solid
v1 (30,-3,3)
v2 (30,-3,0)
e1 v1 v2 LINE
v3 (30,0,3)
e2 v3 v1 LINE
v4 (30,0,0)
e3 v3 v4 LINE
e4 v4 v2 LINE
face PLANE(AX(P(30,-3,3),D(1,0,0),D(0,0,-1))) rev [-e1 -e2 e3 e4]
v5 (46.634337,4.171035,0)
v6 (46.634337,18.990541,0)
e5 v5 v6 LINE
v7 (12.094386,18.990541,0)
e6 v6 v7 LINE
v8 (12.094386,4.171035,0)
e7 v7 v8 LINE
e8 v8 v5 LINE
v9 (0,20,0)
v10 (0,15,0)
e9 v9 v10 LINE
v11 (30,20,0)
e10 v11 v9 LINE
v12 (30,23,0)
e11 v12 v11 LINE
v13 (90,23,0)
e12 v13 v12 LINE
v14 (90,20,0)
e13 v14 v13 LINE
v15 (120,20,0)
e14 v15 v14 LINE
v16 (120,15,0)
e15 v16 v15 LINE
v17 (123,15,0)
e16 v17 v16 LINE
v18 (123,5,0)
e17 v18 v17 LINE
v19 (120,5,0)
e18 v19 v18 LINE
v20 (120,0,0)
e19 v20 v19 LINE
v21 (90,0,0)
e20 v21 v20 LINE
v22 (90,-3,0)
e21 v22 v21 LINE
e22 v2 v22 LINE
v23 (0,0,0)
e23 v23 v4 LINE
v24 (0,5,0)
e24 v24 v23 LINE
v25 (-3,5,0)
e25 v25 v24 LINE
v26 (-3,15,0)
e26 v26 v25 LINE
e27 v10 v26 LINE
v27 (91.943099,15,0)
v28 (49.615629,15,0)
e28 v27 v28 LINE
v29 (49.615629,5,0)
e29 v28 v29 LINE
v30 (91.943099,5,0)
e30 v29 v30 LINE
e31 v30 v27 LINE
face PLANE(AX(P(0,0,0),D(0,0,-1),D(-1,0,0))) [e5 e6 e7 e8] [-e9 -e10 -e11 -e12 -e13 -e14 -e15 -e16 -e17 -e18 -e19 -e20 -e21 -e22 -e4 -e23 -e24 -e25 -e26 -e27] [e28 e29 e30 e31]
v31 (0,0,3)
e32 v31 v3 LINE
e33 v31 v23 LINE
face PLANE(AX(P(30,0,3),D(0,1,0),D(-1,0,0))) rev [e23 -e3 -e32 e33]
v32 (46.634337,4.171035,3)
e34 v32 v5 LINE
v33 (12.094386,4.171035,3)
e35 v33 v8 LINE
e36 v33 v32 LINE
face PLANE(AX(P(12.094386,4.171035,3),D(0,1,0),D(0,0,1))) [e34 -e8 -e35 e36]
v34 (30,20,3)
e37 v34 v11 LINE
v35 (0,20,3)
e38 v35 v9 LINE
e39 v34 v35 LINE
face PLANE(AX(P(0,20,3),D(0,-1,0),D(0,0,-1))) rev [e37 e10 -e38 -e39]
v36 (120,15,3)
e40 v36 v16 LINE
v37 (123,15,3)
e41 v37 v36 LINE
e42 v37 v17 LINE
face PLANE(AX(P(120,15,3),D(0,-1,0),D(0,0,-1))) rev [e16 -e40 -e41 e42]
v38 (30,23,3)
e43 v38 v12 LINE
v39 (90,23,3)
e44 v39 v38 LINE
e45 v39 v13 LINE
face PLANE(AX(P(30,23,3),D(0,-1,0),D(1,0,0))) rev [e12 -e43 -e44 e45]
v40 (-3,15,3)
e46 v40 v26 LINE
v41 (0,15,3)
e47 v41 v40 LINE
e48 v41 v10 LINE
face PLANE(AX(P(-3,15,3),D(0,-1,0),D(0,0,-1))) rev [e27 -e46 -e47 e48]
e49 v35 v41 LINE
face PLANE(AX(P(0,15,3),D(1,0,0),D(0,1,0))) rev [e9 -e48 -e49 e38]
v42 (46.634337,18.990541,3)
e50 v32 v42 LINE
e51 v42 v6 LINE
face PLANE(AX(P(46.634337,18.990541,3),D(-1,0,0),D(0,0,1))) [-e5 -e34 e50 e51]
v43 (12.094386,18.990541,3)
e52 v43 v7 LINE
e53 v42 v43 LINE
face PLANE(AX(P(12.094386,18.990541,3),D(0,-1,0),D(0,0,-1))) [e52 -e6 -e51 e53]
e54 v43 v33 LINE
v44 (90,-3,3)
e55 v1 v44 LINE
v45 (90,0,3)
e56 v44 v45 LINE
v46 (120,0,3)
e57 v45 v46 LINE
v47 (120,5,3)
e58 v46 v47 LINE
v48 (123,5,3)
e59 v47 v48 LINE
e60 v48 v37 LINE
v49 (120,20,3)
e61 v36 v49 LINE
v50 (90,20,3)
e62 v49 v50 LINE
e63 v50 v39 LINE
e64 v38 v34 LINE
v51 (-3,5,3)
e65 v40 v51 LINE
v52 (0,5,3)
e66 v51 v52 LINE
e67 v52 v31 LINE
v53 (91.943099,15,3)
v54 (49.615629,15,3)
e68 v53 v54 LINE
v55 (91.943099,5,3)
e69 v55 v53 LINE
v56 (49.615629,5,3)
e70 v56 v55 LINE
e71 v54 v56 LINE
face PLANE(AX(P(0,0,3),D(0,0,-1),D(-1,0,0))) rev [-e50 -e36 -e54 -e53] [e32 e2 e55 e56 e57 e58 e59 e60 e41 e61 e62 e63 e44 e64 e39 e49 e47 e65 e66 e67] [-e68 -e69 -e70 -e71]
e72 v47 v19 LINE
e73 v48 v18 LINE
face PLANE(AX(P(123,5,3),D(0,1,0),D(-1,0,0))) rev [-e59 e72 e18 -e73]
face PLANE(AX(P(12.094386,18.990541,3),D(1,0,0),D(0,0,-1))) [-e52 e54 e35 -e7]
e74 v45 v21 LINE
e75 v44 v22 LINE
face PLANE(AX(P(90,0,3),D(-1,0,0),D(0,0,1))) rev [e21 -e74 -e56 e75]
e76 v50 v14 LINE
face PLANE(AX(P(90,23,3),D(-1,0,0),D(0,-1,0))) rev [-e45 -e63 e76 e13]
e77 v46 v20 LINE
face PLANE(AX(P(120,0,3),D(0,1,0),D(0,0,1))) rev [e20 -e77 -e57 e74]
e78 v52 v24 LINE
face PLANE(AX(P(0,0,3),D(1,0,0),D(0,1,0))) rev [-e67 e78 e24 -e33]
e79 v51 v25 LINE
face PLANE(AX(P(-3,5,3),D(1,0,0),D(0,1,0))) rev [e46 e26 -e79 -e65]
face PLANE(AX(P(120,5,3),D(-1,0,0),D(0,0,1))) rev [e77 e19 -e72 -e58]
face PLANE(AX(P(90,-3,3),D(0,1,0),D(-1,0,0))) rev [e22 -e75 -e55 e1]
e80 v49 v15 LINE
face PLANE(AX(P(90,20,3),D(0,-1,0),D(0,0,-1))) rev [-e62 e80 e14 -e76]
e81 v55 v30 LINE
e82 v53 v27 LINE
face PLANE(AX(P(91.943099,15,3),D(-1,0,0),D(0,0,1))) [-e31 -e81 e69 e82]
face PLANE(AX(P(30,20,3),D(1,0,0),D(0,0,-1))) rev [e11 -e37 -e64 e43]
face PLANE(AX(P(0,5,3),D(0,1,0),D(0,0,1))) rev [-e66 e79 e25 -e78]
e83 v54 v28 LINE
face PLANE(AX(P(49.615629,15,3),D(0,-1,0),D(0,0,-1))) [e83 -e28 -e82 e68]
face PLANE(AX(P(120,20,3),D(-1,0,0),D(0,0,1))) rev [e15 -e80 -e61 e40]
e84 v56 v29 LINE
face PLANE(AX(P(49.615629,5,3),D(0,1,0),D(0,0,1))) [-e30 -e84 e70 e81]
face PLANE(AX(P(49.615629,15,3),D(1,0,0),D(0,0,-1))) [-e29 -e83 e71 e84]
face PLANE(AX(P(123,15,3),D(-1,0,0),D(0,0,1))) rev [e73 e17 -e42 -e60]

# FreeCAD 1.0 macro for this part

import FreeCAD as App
import Part
import Sketcher

doc = App.newDocument("Part")
params = doc.addObject("Spreadsheet::Sheet", "Params")
for row, (alias, value) in enumerate([
    ("sketch1_width", "30 mm"),
    ("sketch1_width2", "60 mm"),
    ("sketch1_width3", "3 mm"),
    ("sketch1_height", "5 mm"),
    ("sketch1_height2", "10 mm"),
    ("pad1_length", "3 mm"),
], start=1):
    params.set(f"A{row}", alias)
    params.set(f"B{row}", "=" + value)
    params.setAlias(f"B{row}", alias)

body = doc.addObject("PartDesign::Body", "Body")

sketch1 = body.newObject("Sketcher::SketchObject", "Sketch")
sketch1.AttachmentSupport = (doc.getObject("XY_Plane"), [""])
sketch1.MapMode = "FlatFace"
sketch1.addGeometry(Part.LineSegment(App.Vector(0, 5, 0), App.Vector(0, 0, 0)), False)
sketch1.addGeometry(Part.LineSegment(App.Vector(0, 0, 0), App.Vector(30, 0, 0)), False)
sketch1.addGeometry(Part.LineSegment(App.Vector(30, 0, 0), App.Vector(30, -3, 0)), False)
sketch1.addGeometry(Part.LineSegment(App.Vector(30, -3, 0), App.Vector(90, -3, 0)), False)
sketch1.addGeometry(Part.LineSegment(App.Vector(90, -3, 0), App.Vector(90, 0, 0)), False)
sketch1.addGeometry(Part.LineSegment(App.Vector(90, 0, 0), App.Vector(120, 0, 0)), False)
sketch1.addGeometry(Part.LineSegment(App.Vector(120, 0, 0), App.Vector(120, 5, 0)), False)
sketch1.addGeometry(Part.LineSegment(App.Vector(120, 5, 0), App.Vector(123, 5, 0)), False)
sketch1.addGeometry(Part.LineSegment(App.Vector(123, 5, 0), App.Vector(123, 15, 0)), False)
sketch1.addGeometry(Part.LineSegment(App.Vector(123, 15, 0), App.Vector(120, 15, 0)), False)
sketch1.addGeometry(Part.LineSegment(App.Vector(120, 15, 0), App.Vector(120, 20, 0)), False)
sketch1.addGeometry(Part.LineSegment(App.Vector(120, 20, 0), App.Vector(90, 20, 0)), False)
sketch1.addGeometry(Part.LineSegment(App.Vector(90, 20, 0), App.Vector(90, 23, 0)), False)
sketch1.addGeometry(Part.LineSegment(App.Vector(90, 23, 0), App.Vector(30, 23, 0)), False)
sketch1.addGeometry(Part.LineSegment(App.Vector(30, 23, 0), App.Vector(30, 20, 0)), False)
sketch1.addGeometry(Part.LineSegment(App.Vector(30, 20, 0), App.Vector(0, 20, 0)), False)
sketch1.addGeometry(Part.LineSegment(App.Vector(0, 20, 0), App.Vector(0, 15, 0)), False)
sketch1.addGeometry(Part.LineSegment(App.Vector(0, 15, 0), App.Vector(-3, 15, 0)), False)
sketch1.addGeometry(Part.LineSegment(App.Vector(-3, 15, 0), App.Vector(-3, 5, 0)), False)
sketch1.addGeometry(Part.LineSegment(App.Vector(-3, 5, 0), App.Vector(0, 5, 0)), False)
sketch1.addGeometry(Part.LineSegment(App.Vector(49.615629, 5, 0), App.Vector(49.615629, 15, 0)), False)
sketch1.addGeometry(Part.LineSegment(App.Vector(49.615629, 15, 0), App.Vector(91.943099, 15, 0)), False)
sketch1.addGeometry(Part.LineSegment(App.Vector(91.943099, 15, 0), App.Vector(91.943099, 5, 0)), False)
sketch1.addGeometry(Part.LineSegment(App.Vector(91.943099, 5, 0), App.Vector(49.615629, 5, 0)), False)
sketch1.addGeometry(Part.LineSegment(App.Vector(12.094386, 4.171035, 0), App.Vector(12.094386, 18.990541, 0)), False)
sketch1.addGeometry(Part.LineSegment(App.Vector(12.094386, 18.990541, 0), App.Vector(46.634337, 18.990541, 0)), False)
sketch1.addGeometry(Part.LineSegment(App.Vector(46.634337, 18.990541, 0), App.Vector(46.634337, 4.171035, 0)), False)
sketch1.addGeometry(Part.LineSegment(App.Vector(46.634337, 4.171035, 0), App.Vector(12.094386, 4.171035, 0)), False)
sketch1.addConstraint(Sketcher.Constraint("Coincident", 0, 2, 1, 1))
sketch1.addConstraint(Sketcher.Constraint("Coincident", 1, 2, 2, 1))
sketch1.addConstraint(Sketcher.Constraint("Coincident", 2, 2, 3, 1))
sketch1.addConstraint(Sketcher.Constraint("Coincident", 3, 2, 4, 1))
sketch1.addConstraint(Sketcher.Constraint("Coincident", 4, 2, 5, 1))
sketch1.addConstraint(Sketcher.Constraint("Coincident", 5, 2, 6, 1))
sketch1.addConstraint(Sketcher.Constraint("Coincident", 6, 2, 7, 1))
sketch1.addConstraint(Sketcher.Constraint("Coincident", 7, 2, 8, 1))
sketch1.addConstraint(Sketcher.Constraint("Coincident", 8, 2, 9, 1))
sketch1.addConstraint(Sketcher.Constraint("Coincident", 9, 2, 10, 1))
sketch1.addConstraint(Sketcher.Constraint("Coincident", 10, 2, 11, 1))
sketch1.addConstraint(Sketcher.Constraint("Coincident", 11, 2, 12, 1))
sketch1.addConstraint(Sketcher.Constraint("Coincident", 12, 2, 13, 1))
sketch1.addConstraint(Sketcher.Constraint("Coincident", 13, 2, 14, 1))
sketch1.addConstraint(Sketcher.Constraint("Coincident", 14, 2, 15, 1))
sketch1.addConstraint(Sketcher.Constraint("Coincident", 15, 2, 16, 1))
sketch1.addConstraint(Sketcher.Constraint("Coincident", 16, 2, 17, 1))
sketch1.addConstraint(Sketcher.Constraint("Coincident", 17, 2, 18, 1))
sketch1.addConstraint(Sketcher.Constraint("Coincident", 18, 2, 19, 1))
sketch1.addConstraint(Sketcher.Constraint("Coincident", 19, 2, 0, 1))
sketch1.addConstraint(Sketcher.Constraint("Coincident", 20, 2, 21, 1))
sketch1.addConstraint(Sketcher.Constraint("Coincident", 21, 2, 22, 1))
sketch1.addConstraint(Sketcher.Constraint("Coincident", 22, 2, 23, 1))
sketch1.addConstraint(Sketcher.Constraint("Coincident", 23, 2, 20, 1))
sketch1.addConstraint(Sketcher.Constraint("Coincident", 24, 2, 25, 1))
sketch1.addConstraint(Sketcher.Constraint("Coincident", 25, 2, 26, 1))
sketch1.addConstraint(Sketcher.Constraint("Coincident", 26, 2, 27, 1))
sketch1.addConstraint(Sketcher.Constraint("Coincident", 27, 2, 24, 1))
sketch1.addConstraint(Sketcher.Constraint("Vertical", 0))
sketch1.addConstraint(Sketcher.Constraint("Horizontal", 1))
sketch1.addConstraint(Sketcher.Constraint("Vertical", 2))
sketch1.addConstraint(Sketcher.Constraint("Horizontal", 3))
sketch1.addConstraint(Sketcher.Constraint("Vertical", 4))
sketch1.addConstraint(Sketcher.Constraint("Horizontal", 5))
sketch1.addConstraint(Sketcher.Constraint("Vertical", 6))
sketch1.addConstraint(Sketcher.Constraint("Horizontal", 7))
sketch1.addConstraint(Sketcher.Constraint("Vertical", 8))
sketch1.addConstraint(Sketcher.Constraint("Horizontal", 9))
sketch1.addConstraint(Sketcher.Constraint("Vertical", 10))
sketch1.addConstraint(Sketcher.Constraint("Horizontal", 11))
sketch1.addConstraint(Sketcher.Constraint("Vertical", 12))
sketch1.addConstraint(Sketcher.Constraint("Horizontal", 13))
sketch1.addConstraint(Sketcher.Constraint("Vertical", 14))
sketch1.addConstraint(Sketcher.Constraint("Horizontal", 15))
sketch1.addConstraint(Sketcher.Constraint("Vertical", 16))
sketch1.addConstraint(Sketcher.Constraint("Horizontal", 17))
sketch1.addConstraint(Sketcher.Constraint("Vertical", 18))
sketch1.addConstraint(Sketcher.Constraint("Horizontal", 19))
sketch1.addConstraint(Sketcher.Constraint("Vertical", 20))
sketch1.addConstraint(Sketcher.Constraint("Horizontal", 21))
sketch1.addConstraint(Sketcher.Constraint("Vertical", 22))
sketch1.addConstraint(Sketcher.Constraint("Horizontal", 23))
sketch1.addConstraint(Sketcher.Constraint("Vertical", 24))
sketch1.addConstraint(Sketcher.Constraint("Horizontal", 25))
sketch1.addConstraint(Sketcher.Constraint("Vertical", 26))
sketch1.addConstraint(Sketcher.Constraint("Horizontal", 27))
sketch1.addConstraint(Sketcher.Constraint("Coincident", 0, 2, -1, 1))
sketch1.addConstraint(Sketcher.Constraint("PointOnObject", 4, 2, -1))
sketch1.addConstraint(Sketcher.Constraint("PointOnObject", 15, 2, -2))
sketch1.addConstraint(Sketcher.Constraint("Horizontal", 11, 2, 14, 2))
sketch1.addConstraint(Sketcher.Constraint("Horizontal", 9, 2, 16, 2))
sketch1.addConstraint(Sketcher.Constraint("Horizontal", 7, 2, 18, 2))
sketch1.addConstraint(Sketcher.Constraint("Horizontal", 17, 2, 20, 2))
sketch1.addConstraint(Sketcher.Constraint("Horizontal", 19, 2, 22, 2))
sketch1.addConstraint(Sketcher.Constraint("Vertical", 6, 2, 9, 2))
sketch1.addConstraint(Sketcher.Constraint("Vertical", 4, 2, 11, 2))
sketch1.addConstraint(Sketcher.Constraint("Vertical", 2, 2, 13, 2))
sketch1.addConstraint(Sketcher.Constraint("Equal", 1, 5))
sketch1.addConstraint(Sketcher.Constraint("Equal", 9, 17))
sketch1.addConstraint(Sketcher.Constraint("Equal", 19, 2))
sketch1.addConstraint(Sketcher.Constraint("Equal", 6, 10))
sketch1.addConstraint(Sketcher.Constraint("Equal", 4, 12))
sketch1.addConstraint(Sketcher.Constraint("DistanceX", 1, 1, 1, 2, 30.0))
sketch1.addConstraint(Sketcher.Constraint("DistanceX", 3, 1, 3, 2, 60.0))
sketch1.addConstraint(Sketcher.Constraint("DistanceX", 7, 1, 7, 2, 3.0))
sketch1.addConstraint(Sketcher.Constraint("DistanceY", 0, 2, 0, 1, 5.0))
sketch1.addConstraint(Sketcher.Constraint("DistanceY", 8, 1, 8, 2, 10.0))
sketch1.addConstraint(Sketcher.Constraint("DistanceX", 21, 1, 21, 2, 42.32747))
sketch1.addConstraint(Sketcher.Constraint("DistanceX", 25, 1, 25, 2, 34.539951))
sketch1.addConstraint(Sketcher.Constraint("DistanceX", -1, 1, 21, 2, 91.943099))
sketch1.addConstraint(Sketcher.Constraint("DistanceY", 24, 1, 24, 2, 14.819506))
sketch1.addConstraint(Sketcher.Constraint("DistanceY", -1, 1, 24, 2, 18.990541))
sketch1.addConstraint(Sketcher.Constraint("DistanceX", -1, 1, 24, 2, 12.094386))
sketch1.setExpression("Constraints[72]", "Params.sketch1_width")
sketch1.setExpression("Constraints[73]", "Params.sketch1_width2")
sketch1.setExpression("Constraints[74]", "Params.sketch1_width3")
sketch1.setExpression("Constraints[75]", "Params.sketch1_height")
sketch1.setExpression("Constraints[76]", "Params.sketch1_height2")
pad1 = body.newObject("PartDesign::Pad", "Pad")
pad1.Profile = sketch1
pad1.setExpression("Length", "Params.pad1_length")

doc.recompute()
